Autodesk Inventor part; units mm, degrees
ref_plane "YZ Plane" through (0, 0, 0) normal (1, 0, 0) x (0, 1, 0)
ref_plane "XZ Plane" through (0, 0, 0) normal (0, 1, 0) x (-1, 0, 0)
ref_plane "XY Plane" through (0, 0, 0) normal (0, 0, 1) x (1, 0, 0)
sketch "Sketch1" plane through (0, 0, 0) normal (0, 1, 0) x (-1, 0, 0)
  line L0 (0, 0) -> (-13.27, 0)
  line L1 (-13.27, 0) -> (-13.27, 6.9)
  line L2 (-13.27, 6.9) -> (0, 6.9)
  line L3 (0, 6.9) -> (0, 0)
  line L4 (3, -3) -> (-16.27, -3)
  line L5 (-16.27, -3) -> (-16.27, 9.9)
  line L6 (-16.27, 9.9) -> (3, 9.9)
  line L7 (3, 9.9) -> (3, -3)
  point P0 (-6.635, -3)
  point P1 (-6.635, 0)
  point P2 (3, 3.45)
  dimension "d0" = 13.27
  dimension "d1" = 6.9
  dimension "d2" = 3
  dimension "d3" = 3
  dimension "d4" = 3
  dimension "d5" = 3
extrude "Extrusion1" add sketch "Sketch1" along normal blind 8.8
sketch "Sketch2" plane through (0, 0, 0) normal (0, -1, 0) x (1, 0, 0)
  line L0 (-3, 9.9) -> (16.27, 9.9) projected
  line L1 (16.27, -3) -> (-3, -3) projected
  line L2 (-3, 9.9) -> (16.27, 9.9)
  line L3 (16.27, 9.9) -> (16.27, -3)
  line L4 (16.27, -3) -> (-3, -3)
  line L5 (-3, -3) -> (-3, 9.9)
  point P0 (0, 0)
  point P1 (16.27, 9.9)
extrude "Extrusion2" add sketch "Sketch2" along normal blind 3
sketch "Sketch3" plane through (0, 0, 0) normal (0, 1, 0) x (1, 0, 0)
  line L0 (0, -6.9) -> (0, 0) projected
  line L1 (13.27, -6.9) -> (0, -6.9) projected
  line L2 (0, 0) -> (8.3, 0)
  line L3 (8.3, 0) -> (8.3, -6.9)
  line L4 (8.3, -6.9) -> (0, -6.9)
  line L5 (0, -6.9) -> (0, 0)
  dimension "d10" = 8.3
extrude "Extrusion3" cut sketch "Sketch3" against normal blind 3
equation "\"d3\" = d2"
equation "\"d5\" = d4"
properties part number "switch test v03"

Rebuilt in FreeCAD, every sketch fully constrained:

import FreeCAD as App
import Part
import Sketcher

V = App.Vector
Q = App.Units.Quantity

doc = App.newDocument("Part")
body = doc.addObject("PartDesign::Body", "Body")

sketch1 = body.newObject("Sketcher::SketchObject", "Sketch")
sketch1.AttachmentSupport = (doc.getObject("XZ_Plane"), [""])
sketch1.MapMode = "FlatFace"
sketch1.addGeometry(Part.LineSegment(V(16, -3, 0), V(-3, -3, 0)), False)
sketch1.addGeometry(Part.LineSegment(V(-3, -3, 0), V(-3, 10, 0)), False)
sketch1.addGeometry(Part.LineSegment(V(-3, 10, 0), V(16, 10, 0)), False)
sketch1.addGeometry(Part.LineSegment(V(16, 10, 0), V(16, -3, 0)), False)
sketch1.addGeometry(Part.LineSegment(V(0, 7, 0), V(0, 0, 0)), False)
sketch1.addGeometry(Part.LineSegment(V(0, 0, 0), V(13, 0, 0)), False)
sketch1.addGeometry(Part.LineSegment(V(13, 0, 0), V(13, 7, 0)), False)
sketch1.addGeometry(Part.LineSegment(V(13, 7, 0), V(0, 7, 0)), False)
sketch1.addConstraint(Sketcher.Constraint("Coincident", 0, 2, 1, 1))
sketch1.addConstraint(Sketcher.Constraint("Coincident", 1, 2, 2, 1))
sketch1.addConstraint(Sketcher.Constraint("Coincident", 2, 2, 3, 1))
sketch1.addConstraint(Sketcher.Constraint("Coincident", 3, 2, 0, 1))
sketch1.addConstraint(Sketcher.Constraint("Coincident", 4, 2, 5, 1))
sketch1.addConstraint(Sketcher.Constraint("Coincident", 5, 2, 6, 1))
sketch1.addConstraint(Sketcher.Constraint("Coincident", 6, 2, 7, 1))
sketch1.addConstraint(Sketcher.Constraint("Coincident", 7, 2, 4, 1))
sketch1.addConstraint(Sketcher.Constraint("Horizontal", 0))
sketch1.addConstraint(Sketcher.Constraint("Vertical", 1))
sketch1.addConstraint(Sketcher.Constraint("Horizontal", 2))
sketch1.addConstraint(Sketcher.Constraint("Vertical", 3))
sketch1.addConstraint(Sketcher.Constraint("Vertical", 4))
sketch1.addConstraint(Sketcher.Constraint("Horizontal", 5))
sketch1.addConstraint(Sketcher.Constraint("Vertical", 6))
sketch1.addConstraint(Sketcher.Constraint("Horizontal", 7))
sketch1.addConstraint(Sketcher.Constraint("Coincident", 4, 2, -1, 1))
sketch1.addConstraint(Sketcher.Constraint("DistanceY", 4, 2, 4, 1, Q("6.9 mm")))
sketch1.addConstraint(Sketcher.Constraint("DistanceX", 0, 2, -1, 1, Q("3 mm")))
sketch1.addConstraint(Sketcher.Constraint("DistanceY", 0, 2, -1, 1, Q("3 mm")))
sketch1.addConstraint(Sketcher.Constraint("DistanceX", 5, 2, 3, 2, Q("3 mm")))
sketch1.addConstraint(Sketcher.Constraint("DistanceY", 6, 2, 2, 2, Q("3 mm")))
sketch1.addConstraint(Sketcher.Constraint("DistanceX", 5, 1, 5, 2, Q("13.27 mm")))
pad1 = body.newObject("PartDesign::Pad", "Pad")
pad1.Profile = sketch1
pad1.Length = 8.8
pad1.Reversed = True

sketch2 = body.newObject("Sketcher::SketchObject", "Sketch001")
sketch2.AttachmentSupport = (doc.getObject("XZ_Plane"), [""])
sketch2.MapMode = "FlatFace"
sketch2.addGeometry(Part.LineSegment(V(16, 10, 0), V(-3, 10, 0)), False)
sketch2.addGeometry(Part.LineSegment(V(-3, 10, 0), V(-3, -3, 0)), False)
sketch2.addGeometry(Part.LineSegment(V(-3, -3, 0), V(16, -3, 0)), False)
sketch2.addGeometry(Part.LineSegment(V(16, -3, 0), V(16, 10, 0)), False)
sketch2.addConstraint(Sketcher.Constraint("Coincident", 0, 2, 1, 1))
sketch2.addConstraint(Sketcher.Constraint("Coincident", 1, 2, 2, 1))
sketch2.addConstraint(Sketcher.Constraint("Coincident", 2, 2, 3, 1))
sketch2.addConstraint(Sketcher.Constraint("Coincident", 3, 2, 0, 1))
sketch2.addConstraint(Sketcher.Constraint("Horizontal", 0))
sketch2.addConstraint(Sketcher.Constraint("Vertical", 1))
sketch2.addConstraint(Sketcher.Constraint("Horizontal", 2))
sketch2.addConstraint(Sketcher.Constraint("Vertical", 3))
sketch2.addConstraint(Sketcher.Constraint("DistanceY", 1, 2, 1, 1, Q("12.9 mm")))
sketch2.addConstraint(Sketcher.Constraint("DistanceX", 0, 2, -1, 1, Q("3 mm")))
sketch2.addConstraint(Sketcher.Constraint("DistanceY", 1, 2, -1, 1, Q("3 mm")))
sketch2.addConstraint(Sketcher.Constraint("DistanceX", 0, 2, 0, 1, Q("19.27 mm")))
pad2 = body.newObject("PartDesign::Pad", "Pad001")
pad2.Profile = sketch2
pad2.Length = 3

sketch3 = body.newObject("Sketcher::SketchObject", "Sketch002")
sketch3.AttachmentSupport = (doc.getObject("XZ_Plane"), [""])
sketch3.MapMode = "FlatFace"
sketch3.addGeometry(Part.LineSegment(V(0, 0, 0), V(0, 7, 0)), False)
sketch3.addGeometry(Part.LineSegment(V(0, 7, 0), V(8, 7, 0)), False)
sketch3.addGeometry(Part.LineSegment(V(8, 7, 0), V(8, 0, 0)), False)
sketch3.addGeometry(Part.LineSegment(V(8, 0, 0), V(0, 0, 0)), False)
sketch3.addConstraint(Sketcher.Constraint("Coincident", 0, 2, 1, 1))
sketch3.addConstraint(Sketcher.Constraint("Coincident", 1, 2, 2, 1))
sketch3.addConstraint(Sketcher.Constraint("Coincident", 2, 2, 3, 1))
sketch3.addConstraint(Sketcher.Constraint("Coincident", 3, 2, 0, 1))
sketch3.addConstraint(Sketcher.Constraint("Vertical", 0))
sketch3.addConstraint(Sketcher.Constraint("Horizontal", 1))
sketch3.addConstraint(Sketcher.Constraint("Vertical", 2))
sketch3.addConstraint(Sketcher.Constraint("Horizontal", 3))
sketch3.addConstraint(Sketcher.Constraint("Coincident", 3, 2, -1, 1))
sketch3.addConstraint(Sketcher.Constraint("DistanceX", 1, 1, 1, 2, Q("8.3 mm")))
sketch3.addConstraint(Sketcher.Constraint("DistanceY", 0, 1, 0, 2, Q("6.9 mm")))
pocket1 = body.newObject("PartDesign::Pocket", "Pocket")
pocket1.Profile = sketch3
pocket1.Length = 3
pocket1.Reversed = True

doc.recompute()
